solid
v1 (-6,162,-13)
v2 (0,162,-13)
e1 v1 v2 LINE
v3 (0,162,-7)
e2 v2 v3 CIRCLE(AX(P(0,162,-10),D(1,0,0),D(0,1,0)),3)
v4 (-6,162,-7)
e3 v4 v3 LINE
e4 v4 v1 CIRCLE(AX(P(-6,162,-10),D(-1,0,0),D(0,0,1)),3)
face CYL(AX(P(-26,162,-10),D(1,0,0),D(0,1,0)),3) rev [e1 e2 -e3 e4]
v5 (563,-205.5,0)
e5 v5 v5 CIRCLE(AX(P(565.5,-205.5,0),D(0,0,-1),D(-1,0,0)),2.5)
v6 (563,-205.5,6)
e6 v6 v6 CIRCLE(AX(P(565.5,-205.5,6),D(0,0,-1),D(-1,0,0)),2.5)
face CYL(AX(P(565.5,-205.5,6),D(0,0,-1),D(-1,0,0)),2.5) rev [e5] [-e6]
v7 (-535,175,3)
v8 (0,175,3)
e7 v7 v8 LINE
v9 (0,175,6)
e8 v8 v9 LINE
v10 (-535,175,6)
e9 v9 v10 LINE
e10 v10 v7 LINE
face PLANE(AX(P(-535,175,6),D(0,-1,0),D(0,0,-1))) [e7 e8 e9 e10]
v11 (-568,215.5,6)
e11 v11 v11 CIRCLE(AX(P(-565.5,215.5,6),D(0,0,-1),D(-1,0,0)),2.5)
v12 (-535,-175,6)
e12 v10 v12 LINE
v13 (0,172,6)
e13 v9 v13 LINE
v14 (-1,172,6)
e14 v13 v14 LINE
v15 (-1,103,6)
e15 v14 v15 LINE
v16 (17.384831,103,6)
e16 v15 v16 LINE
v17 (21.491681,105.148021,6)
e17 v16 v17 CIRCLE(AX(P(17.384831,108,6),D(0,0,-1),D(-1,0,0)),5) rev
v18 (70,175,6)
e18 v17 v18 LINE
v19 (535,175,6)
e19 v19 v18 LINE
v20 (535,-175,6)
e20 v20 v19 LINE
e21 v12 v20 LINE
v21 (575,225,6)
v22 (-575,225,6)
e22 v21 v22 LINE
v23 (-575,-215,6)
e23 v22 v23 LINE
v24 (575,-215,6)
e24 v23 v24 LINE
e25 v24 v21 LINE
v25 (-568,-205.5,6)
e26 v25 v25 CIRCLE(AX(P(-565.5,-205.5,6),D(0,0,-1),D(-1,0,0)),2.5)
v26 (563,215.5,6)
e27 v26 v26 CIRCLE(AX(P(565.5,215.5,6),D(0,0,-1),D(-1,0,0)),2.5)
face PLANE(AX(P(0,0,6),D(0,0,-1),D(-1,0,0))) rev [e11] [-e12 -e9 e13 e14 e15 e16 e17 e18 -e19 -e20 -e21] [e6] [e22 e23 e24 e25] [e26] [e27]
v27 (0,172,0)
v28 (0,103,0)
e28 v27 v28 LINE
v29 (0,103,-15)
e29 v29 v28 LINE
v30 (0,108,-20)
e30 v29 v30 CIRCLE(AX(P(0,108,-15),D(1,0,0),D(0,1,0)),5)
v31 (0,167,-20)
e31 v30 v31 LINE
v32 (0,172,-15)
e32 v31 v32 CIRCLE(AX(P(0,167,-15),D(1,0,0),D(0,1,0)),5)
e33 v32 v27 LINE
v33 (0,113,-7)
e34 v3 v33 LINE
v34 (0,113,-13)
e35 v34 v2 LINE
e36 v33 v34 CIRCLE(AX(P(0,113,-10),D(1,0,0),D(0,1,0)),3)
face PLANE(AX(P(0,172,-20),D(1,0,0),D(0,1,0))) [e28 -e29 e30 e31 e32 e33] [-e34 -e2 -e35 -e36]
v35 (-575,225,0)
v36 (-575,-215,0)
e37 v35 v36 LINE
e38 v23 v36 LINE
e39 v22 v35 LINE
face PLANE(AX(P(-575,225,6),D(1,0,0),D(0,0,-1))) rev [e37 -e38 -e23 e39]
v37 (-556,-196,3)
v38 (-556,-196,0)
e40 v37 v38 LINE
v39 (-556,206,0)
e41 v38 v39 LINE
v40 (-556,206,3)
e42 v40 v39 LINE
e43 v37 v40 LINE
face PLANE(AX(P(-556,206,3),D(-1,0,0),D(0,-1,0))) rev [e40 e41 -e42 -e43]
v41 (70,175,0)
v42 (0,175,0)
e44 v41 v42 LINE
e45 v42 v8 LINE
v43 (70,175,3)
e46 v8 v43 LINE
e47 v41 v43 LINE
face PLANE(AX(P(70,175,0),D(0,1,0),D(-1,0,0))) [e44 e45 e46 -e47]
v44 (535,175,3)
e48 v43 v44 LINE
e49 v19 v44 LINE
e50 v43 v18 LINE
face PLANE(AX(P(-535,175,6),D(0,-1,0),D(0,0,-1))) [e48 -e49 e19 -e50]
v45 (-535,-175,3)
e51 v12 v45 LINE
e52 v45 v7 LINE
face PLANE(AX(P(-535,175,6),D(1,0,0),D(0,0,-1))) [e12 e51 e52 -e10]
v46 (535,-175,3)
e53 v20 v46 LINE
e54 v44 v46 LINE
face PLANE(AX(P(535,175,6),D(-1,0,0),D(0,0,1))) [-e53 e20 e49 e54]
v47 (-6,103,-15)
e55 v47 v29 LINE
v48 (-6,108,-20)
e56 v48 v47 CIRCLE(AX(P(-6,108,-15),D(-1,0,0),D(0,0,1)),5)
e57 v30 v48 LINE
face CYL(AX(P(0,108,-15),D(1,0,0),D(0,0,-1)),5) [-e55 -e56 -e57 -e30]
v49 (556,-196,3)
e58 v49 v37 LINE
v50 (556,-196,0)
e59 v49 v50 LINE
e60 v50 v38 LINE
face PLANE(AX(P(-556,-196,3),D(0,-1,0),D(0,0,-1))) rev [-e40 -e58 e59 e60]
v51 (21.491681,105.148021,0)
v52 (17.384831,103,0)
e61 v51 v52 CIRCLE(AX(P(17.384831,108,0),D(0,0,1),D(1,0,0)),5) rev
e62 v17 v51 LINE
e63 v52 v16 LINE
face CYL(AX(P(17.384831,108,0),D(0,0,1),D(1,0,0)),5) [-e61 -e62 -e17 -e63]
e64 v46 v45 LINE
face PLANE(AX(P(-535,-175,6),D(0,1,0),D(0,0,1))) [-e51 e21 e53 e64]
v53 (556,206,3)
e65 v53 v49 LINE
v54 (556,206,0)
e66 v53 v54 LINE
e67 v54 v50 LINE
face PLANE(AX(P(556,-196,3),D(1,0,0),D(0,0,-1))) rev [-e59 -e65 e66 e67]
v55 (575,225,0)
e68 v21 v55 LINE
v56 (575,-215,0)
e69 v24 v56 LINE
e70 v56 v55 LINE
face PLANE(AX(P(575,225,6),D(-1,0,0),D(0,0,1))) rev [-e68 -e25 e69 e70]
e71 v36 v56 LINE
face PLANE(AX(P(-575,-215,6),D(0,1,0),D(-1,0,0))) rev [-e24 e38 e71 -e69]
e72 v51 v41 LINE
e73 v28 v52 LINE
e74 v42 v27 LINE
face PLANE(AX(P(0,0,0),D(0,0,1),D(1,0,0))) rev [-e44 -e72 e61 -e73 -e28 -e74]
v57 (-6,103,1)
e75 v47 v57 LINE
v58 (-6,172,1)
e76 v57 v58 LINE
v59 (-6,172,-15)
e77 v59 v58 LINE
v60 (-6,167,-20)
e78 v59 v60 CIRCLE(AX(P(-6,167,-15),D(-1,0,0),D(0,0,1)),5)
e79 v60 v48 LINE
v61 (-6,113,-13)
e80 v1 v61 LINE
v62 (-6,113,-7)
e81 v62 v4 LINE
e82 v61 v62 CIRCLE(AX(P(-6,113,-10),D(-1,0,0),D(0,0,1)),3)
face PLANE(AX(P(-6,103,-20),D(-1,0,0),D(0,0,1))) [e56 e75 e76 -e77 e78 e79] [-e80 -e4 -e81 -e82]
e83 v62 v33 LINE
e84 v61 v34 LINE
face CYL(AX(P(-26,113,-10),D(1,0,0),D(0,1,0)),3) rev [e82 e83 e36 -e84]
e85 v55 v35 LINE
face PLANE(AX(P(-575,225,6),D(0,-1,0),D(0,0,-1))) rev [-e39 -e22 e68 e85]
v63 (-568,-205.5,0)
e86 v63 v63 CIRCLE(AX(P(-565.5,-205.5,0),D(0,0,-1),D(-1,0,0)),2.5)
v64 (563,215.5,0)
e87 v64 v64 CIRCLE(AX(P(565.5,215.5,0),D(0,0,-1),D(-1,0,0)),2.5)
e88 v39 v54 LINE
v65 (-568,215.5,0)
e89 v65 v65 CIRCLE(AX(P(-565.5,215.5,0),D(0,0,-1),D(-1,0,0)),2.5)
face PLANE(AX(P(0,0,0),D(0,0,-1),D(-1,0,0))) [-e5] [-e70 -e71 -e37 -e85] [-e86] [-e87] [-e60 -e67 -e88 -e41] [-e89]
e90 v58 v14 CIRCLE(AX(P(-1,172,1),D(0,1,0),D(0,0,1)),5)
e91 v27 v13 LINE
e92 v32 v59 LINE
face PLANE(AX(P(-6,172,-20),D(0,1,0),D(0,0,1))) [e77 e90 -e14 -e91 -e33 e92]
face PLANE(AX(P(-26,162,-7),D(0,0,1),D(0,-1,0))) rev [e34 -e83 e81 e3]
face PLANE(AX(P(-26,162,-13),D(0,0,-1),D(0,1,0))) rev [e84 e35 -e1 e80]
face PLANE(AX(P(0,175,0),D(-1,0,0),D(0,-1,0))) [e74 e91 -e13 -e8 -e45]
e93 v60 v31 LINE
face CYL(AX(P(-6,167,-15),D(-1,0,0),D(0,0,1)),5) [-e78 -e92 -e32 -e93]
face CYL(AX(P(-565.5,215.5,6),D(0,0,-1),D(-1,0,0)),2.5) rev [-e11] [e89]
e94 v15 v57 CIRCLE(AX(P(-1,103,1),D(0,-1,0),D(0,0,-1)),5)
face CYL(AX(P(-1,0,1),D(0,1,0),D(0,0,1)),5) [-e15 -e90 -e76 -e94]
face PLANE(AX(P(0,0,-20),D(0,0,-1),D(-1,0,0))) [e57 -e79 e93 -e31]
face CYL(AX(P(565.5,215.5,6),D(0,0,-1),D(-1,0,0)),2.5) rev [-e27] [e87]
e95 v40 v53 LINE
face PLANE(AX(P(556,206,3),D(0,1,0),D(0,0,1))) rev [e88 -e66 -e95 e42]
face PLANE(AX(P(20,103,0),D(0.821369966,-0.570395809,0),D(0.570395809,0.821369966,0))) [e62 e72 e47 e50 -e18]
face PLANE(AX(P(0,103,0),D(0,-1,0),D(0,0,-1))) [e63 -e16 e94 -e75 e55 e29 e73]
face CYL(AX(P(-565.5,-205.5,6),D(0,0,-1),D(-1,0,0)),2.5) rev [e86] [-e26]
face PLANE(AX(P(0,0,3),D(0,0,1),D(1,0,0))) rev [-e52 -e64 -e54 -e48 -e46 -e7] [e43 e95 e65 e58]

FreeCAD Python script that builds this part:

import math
import FreeCAD as App
import Part
import Sketcher
from FreeCAD import Vector


def edges_at(feature, points):
    """Names of the edges that pass closest to the given points."""
    edges = feature.Shape.Edges
    near = lambda p: min(range(len(edges)), key=lambda i: edges[i].distToShape(Part.Vertex(*p))[0])
    return sorted({f"Edge{near(p) + 1}" for p in points})

doc = App.newDocument("Part")
body = doc.addObject("PartDesign::Body", "Body")

sketch1 = doc.addObject("Sketcher::SketchObject", "Sketch")
body.addObject(sketch1)
sketch1.AttachmentSupport = (doc.XY_Plane, [""])
sketch1.MapMode = "FlatFace"
sketch1.addGeometry([
    Part.LineSegment(Vector(-575, 225, 0), Vector(-575, -215, 0)),
    Part.LineSegment(Vector(-575, -215, 0), Vector(575, -215, 0)),
    Part.LineSegment(Vector(575, -215, 0), Vector(575, 225, 0)),
    Part.LineSegment(Vector(575, 225, 0), Vector(-575, 225, 0)),
    Part.LineSegment(Vector(535, -175, 0), Vector(-535, -175, 0)),
    Part.LineSegment(Vector(-535, -175, 0), Vector(-535, 175, 0)),
    Part.LineSegment(Vector(-535, 175, 0), Vector(535, 175, 0)),
    Part.LineSegment(Vector(535, 175, 0), Vector(535, -175, 0)),
], False)
sketch1.addConstraint([
    Sketcher.Constraint("Coincident", 0, 2, 1, 1),
    Sketcher.Constraint("Coincident", 1, 2, 2, 1),
    Sketcher.Constraint("Coincident", 2, 2, 3, 1),
    Sketcher.Constraint("Coincident", 3, 2, 0, 1),
    Sketcher.Constraint("Coincident", 4, 2, 5, 1),
    Sketcher.Constraint("Coincident", 5, 2, 6, 1),
    Sketcher.Constraint("Coincident", 6, 2, 7, 1),
    Sketcher.Constraint("Coincident", 7, 2, 4, 1),
    Sketcher.Constraint("Vertical", 0),
    Sketcher.Constraint("Horizontal", 1),
    Sketcher.Constraint("Vertical", 2),
    Sketcher.Constraint("Horizontal", 3),
    Sketcher.Constraint("Horizontal", 4),
    Sketcher.Constraint("Vertical", 5),
    Sketcher.Constraint("Horizontal", 6),
    Sketcher.Constraint("Vertical", 7),
    Sketcher.Constraint("Symmetric", 4, 2, 6, 2, -1, 1),
    Sketcher.Constraint("DistanceX", 1, 1, 1, 2, 1150.0),
    Sketcher.Constraint("DistanceX", 4, 2, 4, 1, 1070.0),
    Sketcher.Constraint("DistanceY", 0, 2, 0, 1, 440.0),
    Sketcher.Constraint("DistanceY", 5, 1, 5, 2, 350.0),
    Sketcher.Constraint("DistanceX", 0, 2, -1, 1, 575.0),
    Sketcher.Constraint("DistanceY", 0, 2, -1, 1, 215.0),
])
pad1 = doc.addObject("PartDesign::Pad", "Pad")
body.addObject(pad1)
pad1.Profile = sketch1
pad1.Length = 6

sketch2 = doc.addObject("Sketcher::SketchObject", "Sketch001")
body.addObject(sketch2)
sketch2.AttachmentSupport = (doc.XY_Plane, [""])
sketch2.MapMode = "FlatFace"
sketch2.addGeometry([
    Part.Circle(Vector(565.5, 215.5, 0), Vector(0, 0, 1), 2.5),
    Part.Circle(Vector(-565.5, 215.5, 0), Vector(0, 0, 1), 2.5),
    Part.Circle(Vector(-565.5, -205.5, 0), Vector(0, 0, 1), 2.5),
    Part.Circle(Vector(565.5, -205.5, 0), Vector(0, 0, 1), 2.5),
], False)
sketch2.addConstraint([
    Sketcher.Constraint("Equal", 0, 1),
    Sketcher.Constraint("Equal", 1, 2),
    Sketcher.Constraint("Equal", 2, 3),
    Sketcher.Constraint("Symmetric", 0, 3, 1, 3, -2),
    Sketcher.Constraint("Symmetric", 2, 3, 3, 3, -2),
    Sketcher.Constraint("Vertical", 1, 3, 2, 3),
    Sketcher.Constraint("Diameter", 0, 5.0),
    Sketcher.Constraint("DistanceX", 1, 3, 0, 3, 1131.0),
    Sketcher.Constraint("DistanceY", 2, 3, 1, 3, 421.0),
    Sketcher.Constraint("DistanceY", -1, 1, 0, 3, 215.5),
])
pocket1 = doc.addObject("PartDesign::Pocket", "Pocket")
body.addObject(pocket1)
pocket1.Profile = sketch2
pocket1.Type = "ThroughAll"
pocket1.Reversed = True

sketch3 = doc.addObject("Sketcher::SketchObject", "Sketch002")
body.addObject(sketch3)
sketch3.AttachmentSupport = (doc.XY_Plane, [""])
sketch3.MapMode = "FlatFace"
sketch3.addGeometry([
    Part.LineSegment(Vector(556, 206, 0), Vector(556, -196, 0)),
    Part.LineSegment(Vector(556, -196, 0), Vector(-556, -196, 0)),
    Part.LineSegment(Vector(-556, -196, 0), Vector(-556, 206, 0)),
    Part.LineSegment(Vector(-556, 206, 0), Vector(556, 206, 0)),
    Part.LineSegment(Vector(-535, -175, 0), Vector(535, -175, 0)),
    Part.LineSegment(Vector(535, -175, 0), Vector(535, 175, 0)),
    Part.LineSegment(Vector(535, 175, 0), Vector(-535, 175, 0)),
    Part.LineSegment(Vector(-535, 175, 0), Vector(-535, -175, 0)),
], False)
sketch3.addConstraint([
    Sketcher.Constraint("Coincident", 0, 2, 1, 1),
    Sketcher.Constraint("Coincident", 1, 2, 2, 1),
    Sketcher.Constraint("Coincident", 2, 2, 3, 1),
    Sketcher.Constraint("Coincident", 3, 2, 0, 1),
    Sketcher.Constraint("Coincident", 4, 2, 5, 1),
    Sketcher.Constraint("Coincident", 5, 2, 6, 1),
    Sketcher.Constraint("Coincident", 6, 2, 7, 1),
    Sketcher.Constraint("Coincident", 7, 2, 4, 1),
    Sketcher.Constraint("Vertical", 0),
    Sketcher.Constraint("Horizontal", 1),
    Sketcher.Constraint("Vertical", 2),
    Sketcher.Constraint("Horizontal", 3),
    Sketcher.Constraint("Horizontal", 4),
    Sketcher.Constraint("Vertical", 5),
    Sketcher.Constraint("Horizontal", 6),
    Sketcher.Constraint("Vertical", 7),
    Sketcher.Constraint("Symmetric", 4, 2, 6, 2, -1, 1),
    Sketcher.Constraint("DistanceX", 1, 2, 1, 1, 1112.0),
    Sketcher.Constraint("DistanceX", 4, 1, 4, 2, 1070.0),
    Sketcher.Constraint("DistanceY", 0, 2, 0, 1, 402.0),
    Sketcher.Constraint("DistanceY", 5, 1, 5, 2, 350.0),
    Sketcher.Constraint("DistanceX", -1, 1, 0, 2, 556.0),
    Sketcher.Constraint("DistanceY", 0, 2, -1, 1, 196.0),
])
pocket2 = doc.addObject("PartDesign::Pocket", "Pocket001")
body.addObject(pocket2)
pocket2.Profile = sketch3
pocket2.Length = 3
pocket2.Reversed = True

sketch4 = doc.addObject("Sketcher::SketchObject", "Sketch003")
body.addObject(sketch4)
sketch4.AttachmentSupport = (doc.XY_Plane, [""])
sketch4.MapMode = "FlatFace"
sketch4.AttachmentOffset = App.Placement(Vector(0, 0, 6), App.Rotation())
sketch4.addGeometry([
    Part.LineSegment(Vector(0, 175, 0), Vector(0, 103, 0)),
    Part.LineSegment(Vector(0, 103, 0), Vector(20, 103, 0)),
    Part.LineSegment(Vector(20, 103, 0), Vector(70, 175, 0)),
    Part.LineSegment(Vector(70, 175, 0), Vector(0, 175, 0)),
], False)
sketch4.addConstraint([
    Sketcher.Constraint("Coincident", 0, 2, 1, 1),
    Sketcher.Constraint("Coincident", 1, 2, 2, 1),
    Sketcher.Constraint("Coincident", 2, 2, 3, 1),
    Sketcher.Constraint("Coincident", 3, 2, 0, 1),
    Sketcher.Constraint("Vertical", 0),
    Sketcher.Constraint("Horizontal", 1),
    Sketcher.Constraint("Horizontal", 3),
    Sketcher.Constraint("PointOnObject", 0, 2, -2),
    Sketcher.Constraint("DistanceX", 1, 1, 1, 2, 20.0),
    Sketcher.Constraint("DistanceX", 3, 2, 3, 1, 70.0),
    Sketcher.Constraint("DistanceY", 0, 2, 0, 1, 72.0),
    Sketcher.Constraint("DistanceY", -1, 1, 0, 2, 103.0),
])
pad2 = doc.addObject("PartDesign::Pad", "Pad001")
body.addObject(pad2)
pad2.Profile = sketch4
pad2.Length = 6
pad2.Reversed = True

sketch5 = doc.addObject("Sketcher::SketchObject", "Sketch004")
body.addObject(sketch5)
sketch5.AttachmentSupport = (doc.XY_Plane, [""])
sketch5.MapMode = "FlatFace"
sketch5.AttachmentOffset = App.Placement(Vector(0, 0, 6), App.Rotation())
sketch5.addGeometry([
    Part.LineSegment(Vector(-6, 172, 0), Vector(-6, 103, 0)),
    Part.LineSegment(Vector(-6, 103, 0), Vector(0, 103, 0)),
    Part.LineSegment(Vector(0, 103, 0), Vector(0, 172, 0)),
    Part.LineSegment(Vector(0, 172, 0), Vector(-6, 172, 0)),
], False)
sketch5.addConstraint([
    Sketcher.Constraint("Coincident", 0, 2, 1, 1),
    Sketcher.Constraint("Coincident", 1, 2, 2, 1),
    Sketcher.Constraint("Coincident", 2, 2, 3, 1),
    Sketcher.Constraint("Coincident", 3, 2, 0, 1),
    Sketcher.Constraint("Vertical", 0),
    Sketcher.Constraint("Horizontal", 1),
    Sketcher.Constraint("Vertical", 2),
    Sketcher.Constraint("Horizontal", 3),
    Sketcher.Constraint("PointOnObject", 1, 2, -2),
    Sketcher.Constraint("DistanceX", 1, 1, 1, 2, 6.0),
    Sketcher.Constraint("DistanceY", 0, 2, 0, 1, 69.0),
    Sketcher.Constraint("DistanceY", -1, 1, 0, 2, 103.0),
])
pad3 = doc.addObject("PartDesign::Pad", "Pad002")
body.addObject(pad3)
pad3.Profile = sketch5
pad3.Length = 26
pad3.Reversed = True

sketch6 = doc.addObject("Sketcher::SketchObject", "Sketch005")
body.addObject(sketch6)
sketch6.AttachmentSupport = (doc.YZ_Plane, [""])
sketch6.MapMode = "FlatFace"
sketch6.addGeometry([
    Part.LineSegment(Vector(113, -13, 0), Vector(162, -13, 0)),
    Part.ArcOfCircle(Part.Circle(Vector(162, -10, 0), Vector(0, 0, 1), 3), math.radians(-90), math.radians(90)),
    Part.LineSegment(Vector(162, -7, 0), Vector(113, -7, 0)),
    Part.ArcOfCircle(Part.Circle(Vector(113, -10, 0), Vector(0, 0, 1), 3), math.radians(90), math.radians(270)),
], False)
sketch6.addConstraint([
    Sketcher.Constraint("Tangent", 0, 2, 1, 1),
    Sketcher.Constraint("Tangent", 1, 2, 2, 1),
    Sketcher.Constraint("Tangent", 2, 2, 3, 1),
    Sketcher.Constraint("Tangent", 3, 2, 0, 1),
    Sketcher.Constraint("Horizontal", 0),
    Sketcher.Constraint("Horizontal", 2),
    Sketcher.Constraint("Radius", 1, 3.0),
    Sketcher.Constraint("DistanceX", 0, 1, 0, 2, 49.0),
    Sketcher.Constraint("DistanceX", -1, 1, 1, 3, 162.0),
    Sketcher.Constraint("DistanceY", 1, 3, -1, 1, 10.0),
])
pocket3 = doc.addObject("PartDesign::Pocket", "Pocket002")
body.addObject(pocket3)
pocket3.Profile = sketch6
pocket3.Length = 26
doc.recompute()

fillet = doc.addObject("PartDesign::Fillet", "Fillet")
body.addObject(fillet)
fillet.Base = (pocket3, edges_at(pocket3, [
    (20, 103, 3),
    (-3, 103, -20),
    (-3, 172, -20),
    (-6, 137.5, 6),
]))
fillet.Radius = 5

doc.recompute()
